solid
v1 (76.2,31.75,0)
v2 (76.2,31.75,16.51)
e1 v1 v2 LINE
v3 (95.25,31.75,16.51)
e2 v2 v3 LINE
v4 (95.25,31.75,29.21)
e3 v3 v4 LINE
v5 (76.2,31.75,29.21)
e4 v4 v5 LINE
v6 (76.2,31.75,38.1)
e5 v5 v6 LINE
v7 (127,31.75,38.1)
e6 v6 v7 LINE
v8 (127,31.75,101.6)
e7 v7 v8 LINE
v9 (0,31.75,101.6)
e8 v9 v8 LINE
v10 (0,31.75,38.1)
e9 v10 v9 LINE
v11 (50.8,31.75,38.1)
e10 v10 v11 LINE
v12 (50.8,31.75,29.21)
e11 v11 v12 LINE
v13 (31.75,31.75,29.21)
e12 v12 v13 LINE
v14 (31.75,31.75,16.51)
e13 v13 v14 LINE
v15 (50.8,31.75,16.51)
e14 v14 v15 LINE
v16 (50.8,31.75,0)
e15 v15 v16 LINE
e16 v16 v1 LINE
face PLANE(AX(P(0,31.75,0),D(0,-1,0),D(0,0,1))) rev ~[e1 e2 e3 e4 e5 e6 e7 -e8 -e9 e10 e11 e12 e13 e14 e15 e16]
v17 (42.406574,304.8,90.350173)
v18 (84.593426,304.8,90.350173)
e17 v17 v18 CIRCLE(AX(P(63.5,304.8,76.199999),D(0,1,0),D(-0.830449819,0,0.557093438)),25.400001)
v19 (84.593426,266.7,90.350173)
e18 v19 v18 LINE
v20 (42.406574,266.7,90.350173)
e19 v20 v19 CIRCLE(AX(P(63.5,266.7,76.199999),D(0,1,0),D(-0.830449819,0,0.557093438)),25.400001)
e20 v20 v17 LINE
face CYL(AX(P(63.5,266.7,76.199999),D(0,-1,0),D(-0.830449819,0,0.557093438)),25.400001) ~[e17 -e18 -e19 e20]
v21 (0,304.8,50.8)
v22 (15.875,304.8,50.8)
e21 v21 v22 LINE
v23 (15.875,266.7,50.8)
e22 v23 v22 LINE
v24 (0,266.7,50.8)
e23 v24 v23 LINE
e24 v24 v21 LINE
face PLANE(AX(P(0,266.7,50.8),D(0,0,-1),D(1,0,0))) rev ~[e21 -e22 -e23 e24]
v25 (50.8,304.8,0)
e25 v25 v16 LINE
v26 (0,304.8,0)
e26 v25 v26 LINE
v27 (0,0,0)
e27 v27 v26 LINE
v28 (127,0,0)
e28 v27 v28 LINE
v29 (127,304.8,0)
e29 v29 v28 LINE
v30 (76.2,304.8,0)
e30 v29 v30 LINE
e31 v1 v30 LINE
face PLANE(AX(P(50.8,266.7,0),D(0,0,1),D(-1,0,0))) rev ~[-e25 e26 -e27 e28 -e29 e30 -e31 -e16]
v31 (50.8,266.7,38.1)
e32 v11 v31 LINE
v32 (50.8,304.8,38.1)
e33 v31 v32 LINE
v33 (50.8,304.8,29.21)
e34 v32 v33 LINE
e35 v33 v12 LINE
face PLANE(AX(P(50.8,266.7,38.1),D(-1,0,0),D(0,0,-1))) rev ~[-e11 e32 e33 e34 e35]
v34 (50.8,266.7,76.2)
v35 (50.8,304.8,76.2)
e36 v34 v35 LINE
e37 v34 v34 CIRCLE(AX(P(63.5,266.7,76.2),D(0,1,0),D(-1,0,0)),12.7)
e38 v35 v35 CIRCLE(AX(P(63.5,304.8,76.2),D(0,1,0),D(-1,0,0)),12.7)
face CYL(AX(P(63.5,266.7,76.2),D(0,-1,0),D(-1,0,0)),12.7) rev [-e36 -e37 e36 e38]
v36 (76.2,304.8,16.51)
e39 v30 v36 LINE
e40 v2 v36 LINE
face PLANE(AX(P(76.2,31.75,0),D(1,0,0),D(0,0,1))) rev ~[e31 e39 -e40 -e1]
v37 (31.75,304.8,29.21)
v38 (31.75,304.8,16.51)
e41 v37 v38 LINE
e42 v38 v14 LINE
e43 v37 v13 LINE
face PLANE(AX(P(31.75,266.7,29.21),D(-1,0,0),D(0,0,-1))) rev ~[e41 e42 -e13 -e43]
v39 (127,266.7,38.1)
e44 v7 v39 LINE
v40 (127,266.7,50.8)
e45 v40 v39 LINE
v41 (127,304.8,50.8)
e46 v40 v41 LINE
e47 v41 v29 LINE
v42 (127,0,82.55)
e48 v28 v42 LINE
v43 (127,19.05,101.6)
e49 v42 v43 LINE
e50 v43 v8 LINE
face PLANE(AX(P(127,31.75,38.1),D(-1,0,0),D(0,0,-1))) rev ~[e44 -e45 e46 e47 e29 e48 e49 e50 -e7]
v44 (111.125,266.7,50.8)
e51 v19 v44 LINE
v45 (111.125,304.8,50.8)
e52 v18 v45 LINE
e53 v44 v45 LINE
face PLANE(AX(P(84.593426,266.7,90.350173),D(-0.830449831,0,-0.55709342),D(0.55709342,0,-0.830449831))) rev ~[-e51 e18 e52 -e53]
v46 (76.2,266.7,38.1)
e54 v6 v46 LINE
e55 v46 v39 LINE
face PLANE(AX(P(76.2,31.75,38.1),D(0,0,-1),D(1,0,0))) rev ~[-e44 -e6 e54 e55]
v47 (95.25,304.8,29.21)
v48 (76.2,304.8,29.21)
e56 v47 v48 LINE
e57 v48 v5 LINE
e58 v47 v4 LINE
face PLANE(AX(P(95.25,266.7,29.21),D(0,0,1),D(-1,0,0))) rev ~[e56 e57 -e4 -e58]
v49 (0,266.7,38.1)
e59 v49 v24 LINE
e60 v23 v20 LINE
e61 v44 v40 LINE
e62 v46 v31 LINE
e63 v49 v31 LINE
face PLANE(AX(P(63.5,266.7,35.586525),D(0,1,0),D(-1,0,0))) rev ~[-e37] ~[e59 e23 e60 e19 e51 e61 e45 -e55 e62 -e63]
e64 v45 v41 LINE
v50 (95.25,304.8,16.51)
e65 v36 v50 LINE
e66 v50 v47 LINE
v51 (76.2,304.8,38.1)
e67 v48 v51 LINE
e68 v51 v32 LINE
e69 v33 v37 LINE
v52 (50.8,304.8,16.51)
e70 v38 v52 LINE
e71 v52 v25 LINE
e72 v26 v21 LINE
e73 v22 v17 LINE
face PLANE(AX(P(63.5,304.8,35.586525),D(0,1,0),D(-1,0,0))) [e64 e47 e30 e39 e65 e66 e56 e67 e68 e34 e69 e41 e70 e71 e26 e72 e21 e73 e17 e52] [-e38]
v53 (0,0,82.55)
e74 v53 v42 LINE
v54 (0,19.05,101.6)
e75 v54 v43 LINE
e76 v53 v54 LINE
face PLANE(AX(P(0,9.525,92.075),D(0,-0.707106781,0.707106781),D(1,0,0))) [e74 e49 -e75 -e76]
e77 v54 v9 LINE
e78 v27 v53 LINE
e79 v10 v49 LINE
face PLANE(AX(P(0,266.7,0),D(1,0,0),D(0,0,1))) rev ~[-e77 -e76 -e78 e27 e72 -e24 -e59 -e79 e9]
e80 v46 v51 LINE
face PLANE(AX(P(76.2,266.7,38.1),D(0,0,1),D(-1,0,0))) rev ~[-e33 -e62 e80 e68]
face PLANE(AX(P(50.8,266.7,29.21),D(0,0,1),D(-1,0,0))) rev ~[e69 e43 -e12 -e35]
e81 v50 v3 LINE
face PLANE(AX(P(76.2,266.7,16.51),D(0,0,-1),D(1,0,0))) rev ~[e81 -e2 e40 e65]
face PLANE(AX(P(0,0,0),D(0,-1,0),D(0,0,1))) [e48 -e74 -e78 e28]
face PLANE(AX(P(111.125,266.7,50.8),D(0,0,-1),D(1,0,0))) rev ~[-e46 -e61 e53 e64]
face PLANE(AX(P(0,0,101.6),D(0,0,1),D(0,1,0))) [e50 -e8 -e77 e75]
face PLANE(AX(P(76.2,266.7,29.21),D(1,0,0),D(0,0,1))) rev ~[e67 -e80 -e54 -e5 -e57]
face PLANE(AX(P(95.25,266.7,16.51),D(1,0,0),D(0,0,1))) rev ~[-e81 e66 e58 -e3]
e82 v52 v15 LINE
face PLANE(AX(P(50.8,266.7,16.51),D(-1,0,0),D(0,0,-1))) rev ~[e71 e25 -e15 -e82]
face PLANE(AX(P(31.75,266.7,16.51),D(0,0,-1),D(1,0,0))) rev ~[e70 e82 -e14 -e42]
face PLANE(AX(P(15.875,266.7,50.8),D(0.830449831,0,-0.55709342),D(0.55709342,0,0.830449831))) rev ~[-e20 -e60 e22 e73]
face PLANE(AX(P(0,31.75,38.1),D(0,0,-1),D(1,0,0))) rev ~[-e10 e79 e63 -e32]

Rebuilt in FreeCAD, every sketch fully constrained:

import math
import FreeCAD as App
import Part
import Sketcher
Q = App.Units.Quantity


def edges_at(feature, points):
    """Names of the edges that pass closest to the given points."""
    edges = feature.Shape.Edges
    near = lambda p: min(range(len(edges)), key=lambda i: edges[i].distToShape(Part.Vertex(*p))[0])
    return sorted({f"Edge{near(p) + 1}" for p in points})


def add_polygon(sketch, points):
    """Adds a closed chain of lines whose ends are joined by coincident constraints."""
    first, n = sketch.GeometryCount, len(points)
    for a, b in zip(points, points[1:] + points[:1]):
        sketch.addGeometry(Part.LineSegment(App.Vector(*a, 0), App.Vector(*b, 0)), False)
    for i in range(n):
        sketch.addConstraint(Sketcher.Constraint("Coincident", first + i, 2, first + (i + 1) % n, 1))

doc = App.newDocument("Part")
body = doc.addObject("PartDesign::Body", "Body")

# Sketch on YZ plane
sketch1 = doc.addObject("Sketcher::SketchObject", "Sketch")
body.addObject(sketch1)
sketch1.AttachmentSupport = (doc.YZ_Plane, [""])
sketch1.MapMode = "FlatFace"
add_polygon(sketch1, [(0, 102), (0, 0), (32, 0), (32, 102)])  # lines 0-3
sketch1.addConstraint(Sketcher.Constraint("Vertical", 0))
sketch1.addConstraint(Sketcher.Constraint("Horizontal", 1))
sketch1.addConstraint(Sketcher.Constraint("Vertical", 2))
sketch1.addConstraint(Sketcher.Constraint("Horizontal", 3))
sketch1.addConstraint(Sketcher.Constraint("Coincident", 0, 2, -1, 1))
sketch1.addConstraint(Sketcher.Constraint("DistanceY", 0, 2, 0, 1, Q("4 in")))
sketch1.addConstraint(Sketcher.Constraint("DistanceX", 1, 1, 1, 2, Q("1.25 in")))
pad1 = doc.addObject("PartDesign::Pad", "Pad")
body.addObject(pad1)
pad1.Profile = sketch1
pad1.Length = Q("5 in")
doc.recompute()

chamfer = doc.addObject("PartDesign::Chamfer", "Chamfer")
body.addObject(chamfer)
chamfer.Base = (pad1, edges_at(pad1, [(63.5, 0, 101.6)]))
chamfer.Size = Q("0.75 in")

# Sketch on XZ plane
sketch2 = doc.addObject("Sketcher::SketchObject", "Sketch001")
body.addObject(sketch2)
sketch2.AttachmentSupport = (doc.XZ_Plane, [""])
sketch2.MapMode = "FlatFace"
sketch2.AttachmentOffset = App.Placement(App.Vector(0, 0, -1.25 * 25.4), App.Rotation())
add_polygon(sketch2, [(127, 0), (76, 0), (76, 17), (95, 17), (95, 29), (76, 29), (76, 38), (127, 38)])  # lines 0-7
add_polygon(sketch2, [(51, 0), (0, 0), (0, 38), (51, 38), (51, 29), (32, 29), (32, 17), (51, 17)])  # lines 8-15
sketch2.addConstraint(Sketcher.Constraint("Horizontal", 0))
sketch2.addConstraint(Sketcher.Constraint("Vertical", 1))
sketch2.addConstraint(Sketcher.Constraint("Horizontal", 2))
sketch2.addConstraint(Sketcher.Constraint("Vertical", 3))
sketch2.addConstraint(Sketcher.Constraint("Horizontal", 4))
sketch2.addConstraint(Sketcher.Constraint("Vertical", 5))
sketch2.addConstraint(Sketcher.Constraint("Horizontal", 6))
sketch2.addConstraint(Sketcher.Constraint("Vertical", 7))
sketch2.addConstraint(Sketcher.Constraint("Horizontal", 8))
sketch2.addConstraint(Sketcher.Constraint("Vertical", 9))
sketch2.addConstraint(Sketcher.Constraint("Horizontal", 10))
sketch2.addConstraint(Sketcher.Constraint("Vertical", 11))
sketch2.addConstraint(Sketcher.Constraint("Horizontal", 12))
sketch2.addConstraint(Sketcher.Constraint("Vertical", 13))
sketch2.addConstraint(Sketcher.Constraint("Horizontal", 14))
sketch2.addConstraint(Sketcher.Constraint("Vertical", 15))
sketch2.addConstraint(Sketcher.Constraint("Coincident", 8, 2, -1, 1))
sketch2.addConstraint(Sketcher.Constraint("PointOnObject", 0, 2, -1))
sketch2.addConstraint(Sketcher.Constraint("Horizontal", 6, 2, 9, 2))
sketch2.addConstraint(Sketcher.Constraint("Horizontal", 4, 2, 11, 2))
sketch2.addConstraint(Sketcher.Constraint("Horizontal", 2, 2, 13, 2))
sketch2.addConstraint(Sketcher.Constraint("Vertical", 1, 2, 4, 2))
sketch2.addConstraint(Sketcher.Constraint("Vertical", 11, 2, 14, 2))
sketch2.addConstraint(Sketcher.Constraint("Equal", 6, 8))
sketch2.addConstraint(Sketcher.Constraint("Equal", 4, 12))
sketch2.addConstraint(Sketcher.Constraint("DistanceX", 0, 2, 0, 1, Q("2 in")))
sketch2.addConstraint(Sketcher.Constraint("DistanceY", 3, 1, 3, 2, Q("0.5 in")))
sketch2.addConstraint(Sketcher.Constraint("DistanceY", 7, 2, 7, 1, Q("1.5 in")))
sketch2.addConstraint(Sketcher.Constraint("DistanceX", -1, 1, 0, 2, Q("3 in")))
sketch2.addConstraint(Sketcher.Constraint("DistanceX", 2, 1, 2, 2, Q("0.75 in")))
sketch2.addConstraint(Sketcher.Constraint("DistanceY", 1, 1, 1, 2, Q("0.65 in")))
pad2 = doc.addObject("PartDesign::Pad", "Pad001")
body.addObject(pad2)
pad2.Profile = sketch2
pad2.Length = Q("9.25 in")
pad2.Reversed = True

# Sketch on XZ plane
sketch3 = doc.addObject("Sketcher::SketchObject", "Sketch002")
body.addObject(sketch3)
sketch3.AttachmentSupport = (doc.XZ_Plane, [""])
sketch3.MapMode = "FlatFace"
sketch3.AttachmentOffset = App.Placement(App.Vector(0, 0, -10.5 * 25.4), App.Rotation())
sketch3.addGeometry(Part.LineSegment(App.Vector(51, 0, 0), App.Vector(0, 0, 0)), False)
sketch3.addGeometry(Part.LineSegment(App.Vector(0, 0, 0), App.Vector(0, 51, 0)), False)
sketch3.addGeometry(Part.LineSegment(App.Vector(0, 51, 0), App.Vector(16, 51, 0)), False)
sketch3.addGeometry(Part.LineSegment(App.Vector(16, 51, 0), App.Vector(42, 90, 0)), False)
sketch3.addGeometry(Part.ArcOfCircle(Part.Circle(App.Vector(64, 76, 0), App.Vector(0, 0, 1), 25), math.radians(34), math.radians(146)), False)
sketch3.addGeometry(Part.LineSegment(App.Vector(85, 90, 0), App.Vector(111, 51, 0)), False)
sketch3.addGeometry(Part.LineSegment(App.Vector(111, 51, 0), App.Vector(127, 51, 0)), False)
sketch3.addGeometry(Part.LineSegment(App.Vector(127, 51, 0), App.Vector(127, 0, 0)), False)
sketch3.addGeometry(Part.LineSegment(App.Vector(127, 0, 0), App.Vector(76, 0, 0)), False)
sketch3.addGeometry(Part.LineSegment(App.Vector(76, 0, 0), App.Vector(76, 17, 0)), False)
sketch3.addGeometry(Part.LineSegment(App.Vector(76, 17, 0), App.Vector(95, 17, 0)), False)
sketch3.addGeometry(Part.LineSegment(App.Vector(95, 17, 0), App.Vector(95, 29, 0)), False)
sketch3.addGeometry(Part.LineSegment(App.Vector(95, 29, 0), App.Vector(76, 29, 0)), False)
sketch3.addGeometry(Part.LineSegment(App.Vector(76, 29, 0), App.Vector(76, 38, 0)), False)
sketch3.addGeometry(Part.LineSegment(App.Vector(76, 38, 0), App.Vector(51, 38, 0)), False)
sketch3.addGeometry(Part.LineSegment(App.Vector(51, 38, 0), App.Vector(51, 29, 0)), False)
sketch3.addGeometry(Part.LineSegment(App.Vector(51, 29, 0), App.Vector(32, 29, 0)), False)
sketch3.addGeometry(Part.LineSegment(App.Vector(32, 29, 0), App.Vector(32, 17, 0)), False)
sketch3.addGeometry(Part.LineSegment(App.Vector(32, 17, 0), App.Vector(51, 17, 0)), False)
sketch3.addGeometry(Part.LineSegment(App.Vector(51, 17, 0), App.Vector(51, 0, 0)), False)
sketch3.addGeometry(Part.Circle(App.Vector(64, 76, 0), App.Vector(0, 0, 1), 13), False)
sketch3.addConstraint(Sketcher.Constraint("Coincident", 0, 2, 1, 1))
sketch3.addConstraint(Sketcher.Constraint("Coincident", 1, 2, 2, 1))
sketch3.addConstraint(Sketcher.Constraint("Coincident", 2, 2, 3, 1))
sketch3.addConstraint(Sketcher.Constraint("Tangent", 3, 2, 4, 2))
sketch3.addConstraint(Sketcher.Constraint("Tangent", 4, 1, 5, 1))
sketch3.addConstraint(Sketcher.Constraint("Coincident", 5, 2, 6, 1))
sketch3.addConstraint(Sketcher.Constraint("Coincident", 6, 2, 7, 1))
sketch3.addConstraint(Sketcher.Constraint("Coincident", 7, 2, 8, 1))
sketch3.addConstraint(Sketcher.Constraint("Coincident", 8, 2, 9, 1))
sketch3.addConstraint(Sketcher.Constraint("Coincident", 9, 2, 10, 1))
sketch3.addConstraint(Sketcher.Constraint("Coincident", 10, 2, 11, 1))
sketch3.addConstraint(Sketcher.Constraint("Coincident", 11, 2, 12, 1))
sketch3.addConstraint(Sketcher.Constraint("Coincident", 12, 2, 13, 1))
sketch3.addConstraint(Sketcher.Constraint("Coincident", 13, 2, 14, 1))
sketch3.addConstraint(Sketcher.Constraint("Coincident", 14, 2, 15, 1))
sketch3.addConstraint(Sketcher.Constraint("Coincident", 15, 2, 16, 1))
sketch3.addConstraint(Sketcher.Constraint("Coincident", 16, 2, 17, 1))
sketch3.addConstraint(Sketcher.Constraint("Coincident", 17, 2, 18, 1))
sketch3.addConstraint(Sketcher.Constraint("Coincident", 18, 2, 19, 1))
sketch3.addConstraint(Sketcher.Constraint("Coincident", 19, 2, 0, 1))
sketch3.addConstraint(Sketcher.Constraint("Horizontal", 0))
sketch3.addConstraint(Sketcher.Constraint("Vertical", 1))
sketch3.addConstraint(Sketcher.Constraint("Horizontal", 2))
sketch3.addConstraint(Sketcher.Constraint("Horizontal", 6))
sketch3.addConstraint(Sketcher.Constraint("Vertical", 7))
sketch3.addConstraint(Sketcher.Constraint("Horizontal", 8))
sketch3.addConstraint(Sketcher.Constraint("Vertical", 9))
sketch3.addConstraint(Sketcher.Constraint("Horizontal", 10))
sketch3.addConstraint(Sketcher.Constraint("Vertical", 11))
sketch3.addConstraint(Sketcher.Constraint("Horizontal", 12))
sketch3.addConstraint(Sketcher.Constraint("Vertical", 13))
sketch3.addConstraint(Sketcher.Constraint("Horizontal", 14))
sketch3.addConstraint(Sketcher.Constraint("Vertical", 15))
sketch3.addConstraint(Sketcher.Constraint("Horizontal", 16))
sketch3.addConstraint(Sketcher.Constraint("Vertical", 17))
sketch3.addConstraint(Sketcher.Constraint("Horizontal", 18))
sketch3.addConstraint(Sketcher.Constraint("Vertical", 19))
sketch3.addConstraint(Sketcher.Constraint("Coincident", 0, 2, -1, 1))
sketch3.addConstraint(Sketcher.Constraint("Coincident", 20, 3, 4, 3))
sketch3.addConstraint(Sketcher.Constraint("PointOnObject", 7, 2, -1))
sketch3.addConstraint(Sketcher.Constraint("Horizontal", 3, 2, 4, 1))
sketch3.addConstraint(Sketcher.Constraint("Horizontal", 2, 2, 5, 2))
sketch3.addConstraint(Sketcher.Constraint("Horizontal", 12, 2, 15, 2))
sketch3.addConstraint(Sketcher.Constraint("Horizontal", 10, 2, 17, 2))
sketch3.addConstraint(Sketcher.Constraint("Vertical", 9, 2, 12, 2))
sketch3.addConstraint(Sketcher.Constraint("Vertical", 15, 2, 18, 2))
sketch3.addConstraint(Sketcher.Constraint("Equal", 2, 6))
sketch3.addConstraint(Sketcher.Constraint("Equal", 0, 8))
sketch3.addConstraint(Sketcher.Constraint("Equal", 12, 16))
sketch3.addConstraint(Sketcher.Constraint("Equal", 8, 1))
sketch3.addConstraint(Sketcher.Constraint("Diameter", 20, Q("1 in")))
sketch3.addConstraint(Sketcher.Constraint("Radius", 4, Q("1 in")))
sketch3.addConstraint(Sketcher.Constraint("DistanceX", 0, 2, 0, 1, Q("2 in")))
sketch3.addConstraint(Sketcher.Constraint("DistanceX", 14, 2, 14, 1, Q("1 in")))
sketch3.addConstraint(Sketcher.Constraint("DistanceY", 11, 1, 11, 2, Q("0.5 in")))
sketch3.addConstraint(Sketcher.Constraint("DistanceY", -1, 1, 4, 3, Q("3 in")))
sketch3.addConstraint(Sketcher.Constraint("DistanceX", 10, 1, 10, 2, Q("0.75 in")))
sketch3.addConstraint(Sketcher.Constraint("DistanceY", 9, 1, 9, 2, Q("0.65 in")))
sketch3.addConstraint(Sketcher.Constraint("DistanceY", 13, 1, 13, 2, Q("0.35 in")))
sketch3.addConstraint(Sketcher.Constraint("DistanceX", 2, 1, 2, 2, Q("0.625 in")))
pad3 = doc.addObject("PartDesign::Pad", "Pad002")
body.addObject(pad3)
pad3.Profile = sketch3
pad3.Length = Q("1.5 in")
pad3.Reversed = True

doc.recompute()
